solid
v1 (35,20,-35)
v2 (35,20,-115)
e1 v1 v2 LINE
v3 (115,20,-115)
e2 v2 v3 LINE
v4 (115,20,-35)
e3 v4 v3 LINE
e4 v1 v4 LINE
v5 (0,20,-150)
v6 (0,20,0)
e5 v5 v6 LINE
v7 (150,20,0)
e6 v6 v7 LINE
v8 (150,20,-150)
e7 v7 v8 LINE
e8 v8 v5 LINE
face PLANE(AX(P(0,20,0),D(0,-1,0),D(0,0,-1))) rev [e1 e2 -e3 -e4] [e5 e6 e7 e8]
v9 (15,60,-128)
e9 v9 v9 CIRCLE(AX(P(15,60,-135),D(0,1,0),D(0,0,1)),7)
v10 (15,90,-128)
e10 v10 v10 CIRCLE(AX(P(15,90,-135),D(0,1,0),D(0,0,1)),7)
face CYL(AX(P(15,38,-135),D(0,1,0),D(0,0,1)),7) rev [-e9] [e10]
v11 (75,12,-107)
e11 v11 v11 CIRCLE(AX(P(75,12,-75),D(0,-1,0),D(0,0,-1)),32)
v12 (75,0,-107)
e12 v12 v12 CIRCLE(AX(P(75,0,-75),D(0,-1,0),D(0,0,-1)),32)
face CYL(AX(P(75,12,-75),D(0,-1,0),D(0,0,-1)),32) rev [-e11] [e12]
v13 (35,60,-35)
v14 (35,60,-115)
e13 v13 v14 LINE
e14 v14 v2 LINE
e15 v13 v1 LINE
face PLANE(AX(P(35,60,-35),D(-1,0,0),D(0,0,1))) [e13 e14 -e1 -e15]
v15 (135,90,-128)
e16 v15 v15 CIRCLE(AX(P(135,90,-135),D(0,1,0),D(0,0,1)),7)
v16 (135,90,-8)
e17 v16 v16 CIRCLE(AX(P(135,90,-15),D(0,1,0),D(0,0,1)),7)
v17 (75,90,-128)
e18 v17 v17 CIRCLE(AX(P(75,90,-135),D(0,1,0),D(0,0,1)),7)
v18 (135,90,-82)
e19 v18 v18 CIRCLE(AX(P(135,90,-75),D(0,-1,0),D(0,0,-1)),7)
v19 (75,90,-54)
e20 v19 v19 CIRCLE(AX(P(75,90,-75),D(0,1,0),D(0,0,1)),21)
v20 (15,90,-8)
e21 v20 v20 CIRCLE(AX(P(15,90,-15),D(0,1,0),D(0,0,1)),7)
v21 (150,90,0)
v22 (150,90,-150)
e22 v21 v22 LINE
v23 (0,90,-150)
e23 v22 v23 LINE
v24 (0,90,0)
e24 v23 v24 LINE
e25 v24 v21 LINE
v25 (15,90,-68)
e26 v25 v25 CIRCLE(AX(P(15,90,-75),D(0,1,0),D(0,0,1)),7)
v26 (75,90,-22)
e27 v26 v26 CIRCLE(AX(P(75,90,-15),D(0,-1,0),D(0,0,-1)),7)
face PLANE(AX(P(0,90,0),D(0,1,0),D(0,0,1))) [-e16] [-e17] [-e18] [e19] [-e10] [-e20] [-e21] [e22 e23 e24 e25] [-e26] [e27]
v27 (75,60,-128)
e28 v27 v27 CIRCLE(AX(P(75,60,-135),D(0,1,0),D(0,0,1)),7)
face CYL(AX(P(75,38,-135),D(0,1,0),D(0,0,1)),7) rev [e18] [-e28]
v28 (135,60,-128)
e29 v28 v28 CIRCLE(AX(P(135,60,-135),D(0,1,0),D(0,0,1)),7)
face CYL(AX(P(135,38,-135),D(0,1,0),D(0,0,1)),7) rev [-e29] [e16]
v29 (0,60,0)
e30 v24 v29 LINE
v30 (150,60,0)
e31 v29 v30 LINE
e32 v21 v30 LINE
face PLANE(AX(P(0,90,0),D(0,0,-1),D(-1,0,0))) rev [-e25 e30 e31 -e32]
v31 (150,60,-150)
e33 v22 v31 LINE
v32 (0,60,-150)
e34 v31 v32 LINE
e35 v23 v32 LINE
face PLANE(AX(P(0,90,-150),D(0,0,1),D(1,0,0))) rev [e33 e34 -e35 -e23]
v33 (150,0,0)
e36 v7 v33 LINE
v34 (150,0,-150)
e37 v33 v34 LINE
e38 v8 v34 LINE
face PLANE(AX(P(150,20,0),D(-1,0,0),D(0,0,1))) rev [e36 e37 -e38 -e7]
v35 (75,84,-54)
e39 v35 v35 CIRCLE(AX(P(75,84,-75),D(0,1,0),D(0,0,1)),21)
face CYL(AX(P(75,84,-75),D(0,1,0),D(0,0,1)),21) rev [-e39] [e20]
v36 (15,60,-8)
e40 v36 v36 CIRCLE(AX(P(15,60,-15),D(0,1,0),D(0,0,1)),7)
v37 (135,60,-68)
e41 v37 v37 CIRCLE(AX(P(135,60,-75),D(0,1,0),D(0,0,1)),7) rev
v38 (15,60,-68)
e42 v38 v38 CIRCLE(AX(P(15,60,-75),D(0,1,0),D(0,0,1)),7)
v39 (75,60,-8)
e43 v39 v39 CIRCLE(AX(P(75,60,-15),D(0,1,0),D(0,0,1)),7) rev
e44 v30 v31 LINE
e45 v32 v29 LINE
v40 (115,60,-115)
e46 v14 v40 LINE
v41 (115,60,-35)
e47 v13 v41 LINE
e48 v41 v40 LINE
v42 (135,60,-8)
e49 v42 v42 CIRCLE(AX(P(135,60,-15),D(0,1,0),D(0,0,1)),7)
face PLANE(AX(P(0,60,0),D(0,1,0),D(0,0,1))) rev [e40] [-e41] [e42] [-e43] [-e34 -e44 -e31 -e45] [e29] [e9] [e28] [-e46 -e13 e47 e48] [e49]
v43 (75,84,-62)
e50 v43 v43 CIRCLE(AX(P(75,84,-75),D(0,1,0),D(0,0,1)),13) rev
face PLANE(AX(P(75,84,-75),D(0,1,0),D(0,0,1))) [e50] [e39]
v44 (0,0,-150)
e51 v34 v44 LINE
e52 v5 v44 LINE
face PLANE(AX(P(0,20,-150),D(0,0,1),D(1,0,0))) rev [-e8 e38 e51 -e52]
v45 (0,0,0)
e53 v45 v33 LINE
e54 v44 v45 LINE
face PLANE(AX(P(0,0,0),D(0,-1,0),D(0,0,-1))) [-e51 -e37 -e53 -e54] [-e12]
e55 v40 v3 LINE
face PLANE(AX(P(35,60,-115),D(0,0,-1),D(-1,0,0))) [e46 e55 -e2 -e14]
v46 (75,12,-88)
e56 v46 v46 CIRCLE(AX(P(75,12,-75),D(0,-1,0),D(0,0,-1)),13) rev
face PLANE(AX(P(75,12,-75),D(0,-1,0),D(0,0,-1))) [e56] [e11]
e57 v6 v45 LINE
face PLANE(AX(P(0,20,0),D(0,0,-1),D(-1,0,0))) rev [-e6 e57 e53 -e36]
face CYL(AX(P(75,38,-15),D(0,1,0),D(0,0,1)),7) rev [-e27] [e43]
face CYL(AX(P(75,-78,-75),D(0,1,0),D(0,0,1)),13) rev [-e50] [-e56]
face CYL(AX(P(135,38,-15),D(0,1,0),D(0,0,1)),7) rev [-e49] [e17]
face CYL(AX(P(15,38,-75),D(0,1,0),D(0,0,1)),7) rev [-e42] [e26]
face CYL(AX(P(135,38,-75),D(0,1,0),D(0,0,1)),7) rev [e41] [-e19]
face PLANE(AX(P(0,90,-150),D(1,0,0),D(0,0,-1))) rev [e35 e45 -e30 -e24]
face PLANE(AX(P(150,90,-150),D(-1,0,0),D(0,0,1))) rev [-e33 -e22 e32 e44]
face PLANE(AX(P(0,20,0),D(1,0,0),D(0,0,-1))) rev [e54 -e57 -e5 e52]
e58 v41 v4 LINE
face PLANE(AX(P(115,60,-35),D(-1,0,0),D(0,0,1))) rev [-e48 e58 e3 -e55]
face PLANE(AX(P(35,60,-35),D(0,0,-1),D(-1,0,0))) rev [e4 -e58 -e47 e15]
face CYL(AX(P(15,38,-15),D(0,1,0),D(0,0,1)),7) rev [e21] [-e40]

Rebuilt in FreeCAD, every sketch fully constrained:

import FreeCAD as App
import Part
import Sketcher
Q = App.Units.Quantity


def add_polygon(sketch, points):
    """Adds a closed chain of lines whose ends are joined by coincident constraints."""
    first, n = sketch.GeometryCount, len(points)
    for a, b in zip(points, points[1:] + points[:1]):
        sketch.addGeometry(Part.LineSegment(App.Vector(*a, 0), App.Vector(*b, 0)), False)
    for i in range(n):
        sketch.addConstraint(Sketcher.Constraint("Coincident", first + i, 2, first + (i + 1) % n, 1))

doc = App.newDocument("Part")
params = doc.addObject("Spreadsheet::Sheet", "Params")
for row, (alias, value) in enumerate([
    ("sketch1_width", "150 mm"),
    ("pad1_length", "20 mm"),
    ("sketch2_width", "80 mm"),
    ("pad2_length", "40 mm"),
    ("sketch3_width", "150 mm"),
    ("pad3_length", "30 mm"),
    ("sketch4_diameter", "26 mm"),
    ("pocket1_length", "168 mm"),
    ("sketch5_diameter", "42 mm"),
    ("pocket2_length", "6 mm"),
    ("sketch6_diameter", "64 mm"),
    ("pocket3_length", "12 mm"),
    ("sketch7_diameter", "14 mm"),
    ("pocket4_length", "52 mm"),
], start=1):
    params.set(f"A{row}", alias)
    params.set(f"B{row}", "=" + value)
    params.setAlias(f"B{row}", alias)

body = doc.addObject("PartDesign::Body", "Body")

sketch1 = body.newObject("Sketcher::SketchObject", "Sketch")
sketch1.AttachmentSupport = (doc.getObject("XZ_Plane"), [""])
sketch1.MapMode = "FlatFace"
add_polygon(sketch1, [(0, -150), (0, 0), (150, 0), (150, -150)])
sketch1.addConstraint([
    Sketcher.Constraint("Vertical", 0),
    Sketcher.Constraint("Horizontal", 1),
    Sketcher.Constraint("Vertical", 2),
    Sketcher.Constraint("Horizontal", 3),
    Sketcher.Constraint("Coincident", 0, 2, -1, 1),
    Sketcher.Constraint("Equal", 3, 0),
    Sketcher.Constraint("DistanceX", 1, 1, 1, 2, Q("150 mm")),
])
sketch1.setExpression("Constraints[10]", "Params.sketch1_width")
pad1 = body.newObject("PartDesign::Pad", "Pad")
pad1.Profile = sketch1
pad1.setExpression("Length", "Params.pad1_length")
pad1.Reversed = True

sketch2 = body.newObject("Sketcher::SketchObject", "Sketch001")
sketch2.AttachmentSupport = (doc.getObject("XZ_Plane"), [""])
sketch2.MapMode = "FlatFace"
sketch2.AttachmentOffset = App.Placement(App.Vector(0, 0, -20), App.Rotation())
add_polygon(sketch2, [(35, -115), (35, -35), (115, -35), (115, -115)])
sketch2.addConstraint([
    Sketcher.Constraint("Vertical", 0),
    Sketcher.Constraint("Horizontal", 1),
    Sketcher.Constraint("Vertical", 2),
    Sketcher.Constraint("Horizontal", 3),
    Sketcher.Constraint("Equal", 3, 0),
    Sketcher.Constraint("DistanceX", 1, 1, 1, 2, Q("80 mm")),
    Sketcher.Constraint("DistanceX", -1, 1, 0, 2, Q("35 mm")),
    Sketcher.Constraint("DistanceY", 0, 2, -1, 1, Q("35 mm")),
])
sketch2.setExpression("Constraints[9]", "Params.sketch2_width")
pad2 = body.newObject("PartDesign::Pad", "Pad001")
pad2.Profile = sketch2
pad2.setExpression("Length", "Params.pad2_length")
pad2.Reversed = True

sketch3 = body.newObject("Sketcher::SketchObject", "Sketch002")
sketch3.AttachmentSupport = (doc.getObject("XZ_Plane"), [""])
sketch3.MapMode = "FlatFace"
sketch3.AttachmentOffset = App.Placement(App.Vector(0, 0, -60), App.Rotation())
add_polygon(sketch3, [(0, -150), (0, 0), (150, 0), (150, -150)])
sketch3.addConstraint([
    Sketcher.Constraint("Vertical", 0),
    Sketcher.Constraint("Horizontal", 1),
    Sketcher.Constraint("Vertical", 2),
    Sketcher.Constraint("Horizontal", 3),
    Sketcher.Constraint("Coincident", 0, 2, -1, 1),
    Sketcher.Constraint("Equal", 3, 0),
    Sketcher.Constraint("DistanceX", 1, 1, 1, 2, Q("150 mm")),
])
sketch3.setExpression("Constraints[10]", "Params.sketch3_width")
pad3 = body.newObject("PartDesign::Pad", "Pad002")
pad3.Profile = sketch3
pad3.setExpression("Length", "Params.pad3_length")
pad3.Reversed = True

sketch4 = body.newObject("Sketcher::SketchObject", "Sketch003")
sketch4.AttachmentSupport = (doc.getObject("XZ_Plane"), [""])
sketch4.MapMode = "FlatFace"
sketch4.AttachmentOffset = App.Placement(App.Vector(0, 0, -90), App.Rotation())
sketch4.addGeometry(Part.Circle(App.Vector(75, -75, 0), App.Vector(0, 0, 1), 13), False)
sketch4.addConstraint([
    Sketcher.Constraint("Diameter", 0, Q("26 mm")),
    Sketcher.Constraint("DistanceX", -1, 1, 0, 3, Q("75 mm")),
    Sketcher.Constraint("DistanceY", 0, 3, -1, 1, Q("75 mm")),
])
sketch4.setExpression("Constraints[0]", "Params.sketch4_diameter")
pocket1 = body.newObject("PartDesign::Pocket", "Pocket")
pocket1.Profile = sketch4
pocket1.setExpression("Length", "Params.pocket1_length")
pocket1.Reversed = True

sketch5 = body.newObject("Sketcher::SketchObject", "Sketch004")
sketch5.AttachmentSupport = (doc.getObject("XZ_Plane"), [""])
sketch5.MapMode = "FlatFace"
sketch5.AttachmentOffset = App.Placement(App.Vector(0, 0, -90), App.Rotation())
sketch5.addGeometry(Part.Circle(App.Vector(75, -75, 0), App.Vector(0, 0, 1), 21), False)
sketch5.addConstraint([
    Sketcher.Constraint("Diameter", 0, Q("42 mm")),
    Sketcher.Constraint("DistanceX", -1, 1, 0, 3, Q("75 mm")),
    Sketcher.Constraint("DistanceY", 0, 3, -1, 1, Q("75 mm")),
])
sketch5.setExpression("Constraints[0]", "Params.sketch5_diameter")
pocket2 = body.newObject("PartDesign::Pocket", "Pocket001")
pocket2.Profile = sketch5
pocket2.setExpression("Length", "Params.pocket2_length")
pocket2.Reversed = True

sketch6 = body.newObject("Sketcher::SketchObject", "Sketch005")
sketch6.AttachmentSupport = (doc.getObject("XZ_Plane"), [""])
sketch6.MapMode = "FlatFace"
sketch6.addGeometry(Part.Circle(App.Vector(75, -75, 0), App.Vector(0, 0, 1), 32), False)
sketch6.addConstraint([
    Sketcher.Constraint("Diameter", 0, Q("64 mm")),
    Sketcher.Constraint("DistanceX", -1, 1, 0, 3, Q("75 mm")),
    Sketcher.Constraint("DistanceY", 0, 3, -1, 1, Q("75 mm")),
])
sketch6.setExpression("Constraints[0]", "Params.sketch6_diameter")
pocket3 = body.newObject("PartDesign::Pocket", "Pocket002")
pocket3.Profile = sketch6
pocket3.setExpression("Length", "Params.pocket3_length")

sketch7 = body.newObject("Sketcher::SketchObject", "Sketch006")
sketch7.AttachmentSupport = (doc.getObject("XZ_Plane"), [""])
sketch7.MapMode = "FlatFace"
sketch7.AttachmentOffset = App.Placement(App.Vector(0, 0, -90), App.Rotation())
sketch7.addGeometry([
    Part.Circle(App.Vector(75, -135, 0), App.Vector(0, 0, 1), 7),
    Part.Circle(App.Vector(15, -75, 0), App.Vector(0, 0, 1), 7),
    Part.Circle(App.Vector(75, -15, 0), App.Vector(0, 0, 1), 7),
    Part.Circle(App.Vector(135, -75, 0), App.Vector(0, 0, 1), 7),
    Part.Circle(App.Vector(15, -135, 0), App.Vector(0, 0, 1), 7),
    Part.Circle(App.Vector(135, -135, 0), App.Vector(0, 0, 1), 7),
    Part.Circle(App.Vector(135, -15, 0), App.Vector(0, 0, 1), 7),
    Part.Circle(App.Vector(15, -15, 0), App.Vector(0, 0, 1), 7),
], False)
sketch7.addConstraint([
    Sketcher.Constraint("Equal", 0, 1),
    Sketcher.Constraint("Equal", 1, 2),
    Sketcher.Constraint("Equal", 2, 3),
    Sketcher.Constraint("Equal", 3, 4),
    Sketcher.Constraint("Equal", 4, 5),
    Sketcher.Constraint("Equal", 5, 6),
    Sketcher.Constraint("Equal", 6, 7),
    Sketcher.Constraint("Horizontal", 1, 3, 3, 3),
    Sketcher.Constraint("Horizontal", 0, 3, 4, 3),
    Sketcher.Constraint("Horizontal", 4, 3, 5, 3),
    Sketcher.Constraint("Horizontal", 2, 3, 6, 3),
    Sketcher.Constraint("Horizontal", 6, 3, 7, 3),
    Sketcher.Constraint("Vertical", 0, 3, 2, 3),
    Sketcher.Constraint("Vertical", 1, 3, 4, 3),
    Sketcher.Constraint("Vertical", 3, 3, 5, 3),
    Sketcher.Constraint("Vertical", 5, 3, 6, 3),
    Sketcher.Constraint("Vertical", 4, 3, 7, 3),
    Sketcher.Constraint("Diameter", 0, Q("14 mm")),
    Sketcher.Constraint("DistanceX", -1, 1, 0, 3, Q("75 mm")),
    Sketcher.Constraint("DistanceY", 0, 3, -1, 1, Q("135 mm")),
    Sketcher.Constraint("DistanceX", -1, 1, 1, 3, Q("15 mm")),
    Sketcher.Constraint("DistanceY", 1, 3, -1, 1, Q("75 mm")),
    Sketcher.Constraint("DistanceY", 2, 3, -1, 1, Q("15 mm")),
    Sketcher.Constraint("DistanceX", -1, 1, 3, 3, Q("135 mm")),
])
sketch7.setExpression("Constraints[17]", "Params.sketch7_diameter")
pocket4 = body.newObject("PartDesign::Pocket", "Pocket003")
pocket4.Profile = sketch7
pocket4.setExpression("Length", "Params.pocket4_length")
pocket4.Reversed = True

doc.recompute()
